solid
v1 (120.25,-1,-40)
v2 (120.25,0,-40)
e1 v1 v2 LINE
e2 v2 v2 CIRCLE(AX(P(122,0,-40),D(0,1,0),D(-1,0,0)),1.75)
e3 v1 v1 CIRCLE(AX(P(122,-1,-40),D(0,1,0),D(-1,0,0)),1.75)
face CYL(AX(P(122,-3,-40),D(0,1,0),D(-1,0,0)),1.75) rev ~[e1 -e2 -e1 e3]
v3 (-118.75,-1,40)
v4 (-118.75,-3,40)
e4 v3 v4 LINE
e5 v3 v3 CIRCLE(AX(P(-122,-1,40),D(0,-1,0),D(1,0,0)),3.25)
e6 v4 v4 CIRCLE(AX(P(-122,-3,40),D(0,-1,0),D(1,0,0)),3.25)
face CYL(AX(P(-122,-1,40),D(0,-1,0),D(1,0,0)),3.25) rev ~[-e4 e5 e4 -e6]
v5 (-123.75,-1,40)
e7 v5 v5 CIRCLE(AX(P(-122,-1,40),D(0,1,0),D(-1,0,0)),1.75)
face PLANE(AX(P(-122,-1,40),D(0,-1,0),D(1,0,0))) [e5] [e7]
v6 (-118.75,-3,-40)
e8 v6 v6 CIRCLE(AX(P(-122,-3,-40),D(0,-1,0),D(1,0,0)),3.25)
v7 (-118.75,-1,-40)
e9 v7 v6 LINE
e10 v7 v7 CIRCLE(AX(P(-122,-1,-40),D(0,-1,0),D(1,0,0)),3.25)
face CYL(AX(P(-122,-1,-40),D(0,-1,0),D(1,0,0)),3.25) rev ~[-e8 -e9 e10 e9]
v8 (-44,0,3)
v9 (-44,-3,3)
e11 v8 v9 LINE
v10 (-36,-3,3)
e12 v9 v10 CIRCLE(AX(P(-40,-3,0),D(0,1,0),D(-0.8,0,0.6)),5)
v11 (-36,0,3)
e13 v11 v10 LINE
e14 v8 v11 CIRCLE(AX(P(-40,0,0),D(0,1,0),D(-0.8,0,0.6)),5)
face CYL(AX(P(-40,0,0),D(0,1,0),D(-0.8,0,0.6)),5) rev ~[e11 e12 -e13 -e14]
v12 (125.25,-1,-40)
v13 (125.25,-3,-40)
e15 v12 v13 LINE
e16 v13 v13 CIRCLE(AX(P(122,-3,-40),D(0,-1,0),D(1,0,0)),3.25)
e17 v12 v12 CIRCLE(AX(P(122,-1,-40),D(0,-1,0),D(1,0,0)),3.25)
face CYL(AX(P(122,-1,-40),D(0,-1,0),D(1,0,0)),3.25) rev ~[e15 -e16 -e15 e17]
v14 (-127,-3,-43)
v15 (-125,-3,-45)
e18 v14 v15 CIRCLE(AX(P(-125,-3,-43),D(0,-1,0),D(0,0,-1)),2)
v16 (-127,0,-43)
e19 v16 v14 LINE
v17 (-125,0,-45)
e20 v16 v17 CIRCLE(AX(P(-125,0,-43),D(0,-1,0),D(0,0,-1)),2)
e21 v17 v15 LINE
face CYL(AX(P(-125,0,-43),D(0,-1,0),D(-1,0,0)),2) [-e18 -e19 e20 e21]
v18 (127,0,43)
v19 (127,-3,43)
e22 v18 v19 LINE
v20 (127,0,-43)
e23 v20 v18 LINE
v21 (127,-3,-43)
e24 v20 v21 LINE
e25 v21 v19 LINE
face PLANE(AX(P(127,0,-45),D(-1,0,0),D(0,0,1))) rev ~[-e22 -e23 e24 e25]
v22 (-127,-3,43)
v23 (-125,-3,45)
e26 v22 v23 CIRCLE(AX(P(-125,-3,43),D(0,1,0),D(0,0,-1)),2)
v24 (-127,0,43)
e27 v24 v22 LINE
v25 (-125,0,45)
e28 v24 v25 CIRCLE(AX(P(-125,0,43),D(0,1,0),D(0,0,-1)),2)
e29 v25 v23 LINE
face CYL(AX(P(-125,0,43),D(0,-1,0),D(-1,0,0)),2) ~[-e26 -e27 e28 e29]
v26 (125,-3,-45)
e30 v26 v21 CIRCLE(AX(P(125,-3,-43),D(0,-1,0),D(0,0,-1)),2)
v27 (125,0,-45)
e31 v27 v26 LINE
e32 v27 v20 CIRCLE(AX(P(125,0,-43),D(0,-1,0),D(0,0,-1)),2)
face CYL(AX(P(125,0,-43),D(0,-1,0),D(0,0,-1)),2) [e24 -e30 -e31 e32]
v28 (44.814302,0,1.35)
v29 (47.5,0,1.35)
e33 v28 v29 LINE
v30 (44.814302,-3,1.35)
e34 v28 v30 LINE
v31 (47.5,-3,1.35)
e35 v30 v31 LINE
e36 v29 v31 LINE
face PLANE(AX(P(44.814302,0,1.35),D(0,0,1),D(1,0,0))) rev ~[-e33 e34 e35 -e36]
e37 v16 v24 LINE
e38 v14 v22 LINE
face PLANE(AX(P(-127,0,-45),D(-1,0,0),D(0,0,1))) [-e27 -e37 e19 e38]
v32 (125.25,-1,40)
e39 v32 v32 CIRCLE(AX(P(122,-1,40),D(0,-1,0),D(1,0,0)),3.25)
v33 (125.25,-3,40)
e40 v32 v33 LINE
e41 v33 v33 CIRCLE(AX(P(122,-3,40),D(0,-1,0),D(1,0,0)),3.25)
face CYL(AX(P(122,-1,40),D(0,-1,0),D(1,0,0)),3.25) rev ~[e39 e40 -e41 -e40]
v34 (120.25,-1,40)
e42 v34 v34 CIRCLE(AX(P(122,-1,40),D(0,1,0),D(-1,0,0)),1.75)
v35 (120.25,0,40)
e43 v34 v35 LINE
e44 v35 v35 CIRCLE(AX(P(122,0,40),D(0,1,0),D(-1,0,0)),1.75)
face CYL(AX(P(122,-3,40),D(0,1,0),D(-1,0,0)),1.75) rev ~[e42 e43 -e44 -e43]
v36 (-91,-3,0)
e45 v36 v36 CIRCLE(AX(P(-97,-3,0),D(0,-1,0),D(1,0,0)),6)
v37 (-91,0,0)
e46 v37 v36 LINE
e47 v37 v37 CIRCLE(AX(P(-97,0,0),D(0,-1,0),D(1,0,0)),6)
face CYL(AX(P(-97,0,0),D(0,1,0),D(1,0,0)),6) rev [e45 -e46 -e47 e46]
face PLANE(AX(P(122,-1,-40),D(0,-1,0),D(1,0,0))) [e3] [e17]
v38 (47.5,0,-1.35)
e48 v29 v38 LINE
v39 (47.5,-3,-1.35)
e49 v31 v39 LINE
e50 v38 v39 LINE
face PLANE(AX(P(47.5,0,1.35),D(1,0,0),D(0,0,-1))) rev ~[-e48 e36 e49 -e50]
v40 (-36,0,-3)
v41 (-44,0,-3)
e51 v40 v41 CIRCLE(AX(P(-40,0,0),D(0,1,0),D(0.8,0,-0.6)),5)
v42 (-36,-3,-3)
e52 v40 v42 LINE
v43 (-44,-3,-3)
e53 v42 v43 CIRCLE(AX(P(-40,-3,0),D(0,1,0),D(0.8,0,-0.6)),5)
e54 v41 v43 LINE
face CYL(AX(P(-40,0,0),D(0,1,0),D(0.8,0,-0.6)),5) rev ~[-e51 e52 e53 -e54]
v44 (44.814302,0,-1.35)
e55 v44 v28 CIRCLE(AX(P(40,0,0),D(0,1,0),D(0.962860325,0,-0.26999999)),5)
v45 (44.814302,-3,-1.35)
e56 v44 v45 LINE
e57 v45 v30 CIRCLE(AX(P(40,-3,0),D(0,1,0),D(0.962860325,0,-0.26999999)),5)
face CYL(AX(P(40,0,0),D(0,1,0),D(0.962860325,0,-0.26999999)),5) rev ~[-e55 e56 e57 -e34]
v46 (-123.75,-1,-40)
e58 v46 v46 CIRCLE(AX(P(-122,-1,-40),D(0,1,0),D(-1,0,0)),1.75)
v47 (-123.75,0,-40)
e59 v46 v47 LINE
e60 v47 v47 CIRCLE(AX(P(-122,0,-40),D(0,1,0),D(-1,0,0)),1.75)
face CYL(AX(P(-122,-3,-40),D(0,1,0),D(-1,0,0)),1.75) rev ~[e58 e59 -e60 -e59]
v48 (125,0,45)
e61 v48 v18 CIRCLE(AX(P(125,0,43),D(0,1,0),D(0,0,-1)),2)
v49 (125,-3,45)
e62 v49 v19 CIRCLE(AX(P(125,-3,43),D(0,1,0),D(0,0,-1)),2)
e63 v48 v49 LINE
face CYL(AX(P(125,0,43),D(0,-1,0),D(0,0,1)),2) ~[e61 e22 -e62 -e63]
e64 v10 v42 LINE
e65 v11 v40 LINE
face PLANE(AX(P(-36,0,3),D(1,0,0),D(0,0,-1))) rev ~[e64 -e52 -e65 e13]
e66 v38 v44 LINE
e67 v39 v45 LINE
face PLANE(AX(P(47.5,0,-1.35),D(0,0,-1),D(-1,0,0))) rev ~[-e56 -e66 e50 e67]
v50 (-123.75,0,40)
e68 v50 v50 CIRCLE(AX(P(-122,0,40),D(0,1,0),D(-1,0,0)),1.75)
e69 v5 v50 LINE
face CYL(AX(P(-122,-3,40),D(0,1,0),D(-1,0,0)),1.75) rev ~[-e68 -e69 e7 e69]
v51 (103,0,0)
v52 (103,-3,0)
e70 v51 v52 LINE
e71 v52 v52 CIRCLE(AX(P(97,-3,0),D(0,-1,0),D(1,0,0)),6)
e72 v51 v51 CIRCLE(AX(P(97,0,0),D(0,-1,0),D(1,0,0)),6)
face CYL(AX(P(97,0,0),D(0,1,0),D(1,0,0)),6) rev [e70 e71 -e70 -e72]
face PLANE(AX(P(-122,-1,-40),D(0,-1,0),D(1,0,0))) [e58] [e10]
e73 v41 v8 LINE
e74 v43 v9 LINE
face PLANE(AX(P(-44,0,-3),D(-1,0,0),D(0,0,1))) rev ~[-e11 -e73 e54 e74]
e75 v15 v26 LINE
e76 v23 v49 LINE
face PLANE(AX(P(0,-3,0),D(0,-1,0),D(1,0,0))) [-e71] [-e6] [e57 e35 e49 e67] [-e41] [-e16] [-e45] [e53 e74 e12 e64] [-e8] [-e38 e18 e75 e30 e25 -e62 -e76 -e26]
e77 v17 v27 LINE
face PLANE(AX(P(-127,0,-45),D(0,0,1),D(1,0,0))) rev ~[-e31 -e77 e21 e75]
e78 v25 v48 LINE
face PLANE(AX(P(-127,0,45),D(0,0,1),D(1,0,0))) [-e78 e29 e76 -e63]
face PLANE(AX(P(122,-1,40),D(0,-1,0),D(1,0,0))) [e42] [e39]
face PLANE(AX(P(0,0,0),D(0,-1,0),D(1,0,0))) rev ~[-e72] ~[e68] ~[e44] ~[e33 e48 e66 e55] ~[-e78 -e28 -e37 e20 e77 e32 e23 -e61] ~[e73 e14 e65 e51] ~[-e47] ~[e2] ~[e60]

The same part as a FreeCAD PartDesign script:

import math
import FreeCAD as App
import Part
import Sketcher


def edges_at(feature, points):
    """Names of the edges that pass closest to the given points."""
    edges = feature.Shape.Edges
    near = lambda p: min(range(len(edges)), key=lambda i: edges[i].distToShape(Part.Vertex(*p))[0])
    return sorted({f"Edge{near(p) + 1}" for p in points})


def add_polygon(sketch, points):
    """Adds a closed chain of lines whose ends are joined by coincident constraints."""
    first, n = sketch.GeometryCount, len(points)
    for a, b in zip(points, points[1:] + points[:1]):
        sketch.addGeometry(Part.LineSegment(App.Vector(*a, 0), App.Vector(*b, 0)), False)
    for i in range(n):
        sketch.addConstraint(Sketcher.Constraint("Coincident", first + i, 2, first + (i + 1) % n, 1))

doc = App.newDocument("Part")
body = doc.addObject("PartDesign::Body", "Body")

# Sketch on XZ plane
sketch1 = body.newObject("Sketcher::SketchObject", "Sketch")
sketch1.AttachmentSupport = (doc.getObject("XZ_Plane"), [""])
sketch1.MapMode = "FlatFace"
add_polygon(sketch1, [(-127, 45), (-127, -45), (127, -45), (127, 45)])  # lines 0-3
sketch1.addGeometry(Part.Circle(App.Vector(-97, 0, 0), App.Vector(0, 0, 1), 6), False)  # 4
sketch1.addGeometry(Part.ArcOfCircle(Part.Circle(App.Vector(-40, 0, 0), App.Vector(0, 0, 1), 5), math.radians(-143), math.radians(-37)), False)  # 5
sketch1.addGeometry(Part.LineSegment(App.Vector(-44, -3, 0), App.Vector(-44, 3, 0)), False)  # 6
sketch1.addGeometry(Part.ArcOfCircle(Part.Circle(App.Vector(-40, 0, 0), App.Vector(0, 0, 1), 5), math.radians(37), math.radians(143)), False)  # 7
sketch1.addGeometry(Part.LineSegment(App.Vector(-36, 3, 0), App.Vector(-36, -3, 0)), False)  # 8
sketch1.addGeometry(Part.LineSegment(App.Vector(47.5, -1.4, 0), App.Vector(44.8, -1.4, 0)), False)  # 9
sketch1.addGeometry(Part.ArcOfCircle(Part.Circle(App.Vector(40, 0, 0), App.Vector(0, 0, 1), 5), math.radians(16), math.radians(344)), False)  # 10
sketch1.addGeometry(Part.LineSegment(App.Vector(44.8, 1.4, 0), App.Vector(47.5, 1.4, 0)), False)  # 11
sketch1.addGeometry(Part.LineSegment(App.Vector(47.5, 1.4, 0), App.Vector(47.5, -1.4, 0)), False)  # 12
sketch1.addGeometry(Part.Circle(App.Vector(97, 0, 0), App.Vector(0, 0, 1), 6), False)  # 13
sketch1.addConstraint([
    Sketcher.Constraint("Coincident", 5, 1, 6, 1),
    Sketcher.Constraint("Coincident", 6, 2, 7, 2),
    Sketcher.Constraint("Coincident", 7, 1, 8, 1),
    Sketcher.Constraint("Coincident", 8, 2, 5, 2),
    Sketcher.Constraint("Coincident", 9, 2, 10, 2),
    Sketcher.Constraint("Coincident", 10, 1, 11, 1),
    Sketcher.Constraint("Coincident", 11, 2, 12, 1),
    Sketcher.Constraint("Coincident", 12, 2, 9, 1),
    Sketcher.Constraint("Vertical", 0),
    Sketcher.Constraint("Horizontal", 1),
    Sketcher.Constraint("Vertical", 2),
    Sketcher.Constraint("Horizontal", 3),
    Sketcher.Constraint("Vertical", 6),
    Sketcher.Constraint("Vertical", 8),
    Sketcher.Constraint("Horizontal", 9),
    Sketcher.Constraint("Horizontal", 11),
    Sketcher.Constraint("Vertical", 12),
    Sketcher.Constraint("Coincident", 7, 3, 5, 3),
    Sketcher.Constraint("Equal", 5, 7),
    Sketcher.Constraint("Equal", 7, 10),
    Sketcher.Constraint("Equal", 4, 13),
    Sketcher.Constraint("Symmetric", 5, 3, 10, 3, -1, 1),
    Sketcher.Constraint("Symmetric", 4, 3, 13, 3, -1, 1),
    Sketcher.Constraint("Symmetric", 0, 2, 2, 2, -1, 1),
    Sketcher.Constraint("Symmetric", 9, 2, 10, 1, -1),
    Sketcher.Constraint("PointOnObject", 4, 3, -1),
    Sketcher.Constraint("Horizontal", 6, 2, 7, 1),
    Sketcher.Constraint("Diameter", 4, 12.0),
    Sketcher.Constraint("Radius", 5, 5.0),
    Sketcher.Constraint("DistanceX", 1, 1, 1, 2, 254.0),
    Sketcher.Constraint("DistanceY", 0, 2, 0, 1, 90.0),
    Sketcher.Constraint("DistanceY", 6, 1, 6, 2, 6.0),
    Sketcher.Constraint("DistanceY", 12, 2, 12, 1, 2.7),
    Sketcher.Constraint("DistanceX", 4, 3, -1, 1, 97.0),
    Sketcher.Constraint("DistanceX", 5, 3, -1, 1, 40.0),
    Sketcher.Constraint("DistanceX", -1, 1, 11, 2, 47.5),
])
pad1 = body.newObject("PartDesign::Pad", "Pad")
pad1.Profile = sketch1
pad1.Length = 3

# Sketch on XZ plane
sketch2 = body.newObject("Sketcher::SketchObject", "Sketch001")
sketch2.AttachmentSupport = (doc.getObject("XZ_Plane"), [""])
sketch2.MapMode = "FlatFace"
sketch2.AttachmentOffset = App.Placement(App.Vector(0, 0, 3), App.Rotation())
sketch2.addGeometry([
    Part.Circle(App.Vector(-122, 40, 0), App.Vector(0, 0, 1), 1.8),
    Part.Circle(App.Vector(-122, -40, 0), App.Vector(0, 0, 1), 1.8),
    Part.Circle(App.Vector(122, 40, 0), App.Vector(0, 0, 1), 1.8),
    Part.Circle(App.Vector(122, -40, 0), App.Vector(0, 0, 1), 1.8),
], False)
sketch2.addConstraint([
    Sketcher.Constraint("Equal", 0, 1),
    Sketcher.Constraint("Equal", 1, 2),
    Sketcher.Constraint("Equal", 2, 3),
    Sketcher.Constraint("Symmetric", 1, 3, 2, 3, -1, 1),
    Sketcher.Constraint("Symmetric", 0, 3, 3, 3, -1, 1),
    Sketcher.Constraint("Symmetric", 0, 3, 2, 3, -2),
    Sketcher.Constraint("Diameter", 0, 3.5),
    Sketcher.Constraint("DistanceX", 0, 3, -1, 1, 122.0),
    Sketcher.Constraint("DistanceY", -1, 1, 0, 3, 40.0),
])
doc.recompute()
hole = body.newObject("PartDesign::Hole", "Hole")
hole.Profile = sketch2
hole.ThreadType = "None"
hole.Diameter = 3.5
hole.DepthType = "ThroughAll"
hole.HoleCutType = "Counterbore"
hole.HoleCutDiameter = 6.5
hole.HoleCutDepth = 2
doc.recompute()

fillet = body.newObject("PartDesign::Fillet", "Fillet")
fillet.Base = (hole, edges_at(hole, [
    (-127, -1.5, 45),
    (-127, -1.5, -45),
    (127, -1.5, -45),
    (127, -1.5, 45),
]))
fillet.Radius = 2

doc.recompute()
